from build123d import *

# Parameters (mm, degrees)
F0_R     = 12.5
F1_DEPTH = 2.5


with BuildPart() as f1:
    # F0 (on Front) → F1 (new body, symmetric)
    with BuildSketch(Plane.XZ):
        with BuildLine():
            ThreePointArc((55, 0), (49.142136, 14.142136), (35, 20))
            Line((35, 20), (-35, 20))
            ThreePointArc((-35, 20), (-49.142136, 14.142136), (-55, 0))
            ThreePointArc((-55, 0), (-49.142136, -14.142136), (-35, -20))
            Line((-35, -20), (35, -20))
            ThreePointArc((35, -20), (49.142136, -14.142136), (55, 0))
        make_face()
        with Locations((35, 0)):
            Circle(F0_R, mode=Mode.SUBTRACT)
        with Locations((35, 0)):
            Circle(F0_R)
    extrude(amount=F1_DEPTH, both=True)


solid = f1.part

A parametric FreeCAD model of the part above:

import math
import FreeCAD as App
import Part
import Sketcher

doc = App.newDocument("Part")
params = doc.addObject("Spreadsheet::Sheet", "Params")
for row, (alias, value) in enumerate([
    ("sketch1_radius", "19.999999 mm"),
    ("sketch1_width", "70 mm"),
    ("pad1_length", "5 mm"),
], start=1):
    params.set(f"A{row}", alias)
    params.set(f"B{row}", "=" + value)
    params.setAlias(f"B{row}", alias)

body = doc.addObject("PartDesign::Body", "Body")

sketch1 = doc.addObject("Sketcher::SketchObject", "Sketch")
body.addObject(sketch1)
sketch1.AttachmentSupport = (doc.XZ_Plane, [""])
sketch1.MapMode = "FlatFace"
sketch1.addGeometry([
    Part.ArcOfCircle(Part.Circle(App.Vector(35.000001, 0.000001, 0), App.Vector(0, 0, 1), 19.999999), math.radians(-0.000004), math.radians(90.000004)),
    Part.LineSegment(App.Vector(35, 20, 0), App.Vector(-35, 20, 0)),
    Part.ArcOfCircle(Part.Circle(App.Vector(-35.000001, 0.000001, 0), App.Vector(0, 0, 1), 19.999999), math.radians(89.999996), math.radians(180.000004)),
    Part.ArcOfCircle(Part.Circle(App.Vector(-35.000001, -0.000001, 0), App.Vector(0, 0, 1), 19.999999), math.radians(179.999996), math.radians(270.000004)),
    Part.LineSegment(App.Vector(-35, -20, 0), App.Vector(35, -20, 0)),
    Part.ArcOfCircle(Part.Circle(App.Vector(35.000001, -0.000001, 0), App.Vector(0, 0, 1), 19.999999), math.radians(-90.000004), math.radians(0.000004)),
], False)
sketch1.addConstraint([
    Sketcher.Constraint("Tangent", 0, 2, 1, 1),
    Sketcher.Constraint("Tangent", 1, 2, 2, 1),
    Sketcher.Constraint("Tangent", 2, 2, 3, 1),
    Sketcher.Constraint("Tangent", 3, 2, 4, 1),
    Sketcher.Constraint("Tangent", 4, 2, 5, 1),
    Sketcher.Constraint("Tangent", 5, 2, 0, 1),
    Sketcher.Constraint("Horizontal", 1),
    Sketcher.Constraint("Horizontal", 4),
    Sketcher.Constraint("Equal", 0, 2),
    Sketcher.Constraint("Equal", 2, 3),
    Sketcher.Constraint("Symmetric", 0, 3, 2, 3, -1, 1),
    Sketcher.Constraint("PointOnObject", 2, 2, -1),
    Sketcher.Constraint("PointOnObject", 5, 2, -1),
    Sketcher.Constraint("Radius", 0, 19.999999),
    Sketcher.Constraint("DistanceX", 1, 2, 1, 1, 70.0),
])
sketch1.setExpression("Constraints[13]", "Params.sketch1_radius")
sketch1.setExpression("Constraints[14]", "Params.sketch1_width")
pad1 = doc.addObject("PartDesign::Pad", "Pad")
body.addObject(pad1)
pad1.Profile = sketch1
pad1.setExpression("Length", "Params.pad1_length")
pad1.Midplane = True

doc.recompute()
